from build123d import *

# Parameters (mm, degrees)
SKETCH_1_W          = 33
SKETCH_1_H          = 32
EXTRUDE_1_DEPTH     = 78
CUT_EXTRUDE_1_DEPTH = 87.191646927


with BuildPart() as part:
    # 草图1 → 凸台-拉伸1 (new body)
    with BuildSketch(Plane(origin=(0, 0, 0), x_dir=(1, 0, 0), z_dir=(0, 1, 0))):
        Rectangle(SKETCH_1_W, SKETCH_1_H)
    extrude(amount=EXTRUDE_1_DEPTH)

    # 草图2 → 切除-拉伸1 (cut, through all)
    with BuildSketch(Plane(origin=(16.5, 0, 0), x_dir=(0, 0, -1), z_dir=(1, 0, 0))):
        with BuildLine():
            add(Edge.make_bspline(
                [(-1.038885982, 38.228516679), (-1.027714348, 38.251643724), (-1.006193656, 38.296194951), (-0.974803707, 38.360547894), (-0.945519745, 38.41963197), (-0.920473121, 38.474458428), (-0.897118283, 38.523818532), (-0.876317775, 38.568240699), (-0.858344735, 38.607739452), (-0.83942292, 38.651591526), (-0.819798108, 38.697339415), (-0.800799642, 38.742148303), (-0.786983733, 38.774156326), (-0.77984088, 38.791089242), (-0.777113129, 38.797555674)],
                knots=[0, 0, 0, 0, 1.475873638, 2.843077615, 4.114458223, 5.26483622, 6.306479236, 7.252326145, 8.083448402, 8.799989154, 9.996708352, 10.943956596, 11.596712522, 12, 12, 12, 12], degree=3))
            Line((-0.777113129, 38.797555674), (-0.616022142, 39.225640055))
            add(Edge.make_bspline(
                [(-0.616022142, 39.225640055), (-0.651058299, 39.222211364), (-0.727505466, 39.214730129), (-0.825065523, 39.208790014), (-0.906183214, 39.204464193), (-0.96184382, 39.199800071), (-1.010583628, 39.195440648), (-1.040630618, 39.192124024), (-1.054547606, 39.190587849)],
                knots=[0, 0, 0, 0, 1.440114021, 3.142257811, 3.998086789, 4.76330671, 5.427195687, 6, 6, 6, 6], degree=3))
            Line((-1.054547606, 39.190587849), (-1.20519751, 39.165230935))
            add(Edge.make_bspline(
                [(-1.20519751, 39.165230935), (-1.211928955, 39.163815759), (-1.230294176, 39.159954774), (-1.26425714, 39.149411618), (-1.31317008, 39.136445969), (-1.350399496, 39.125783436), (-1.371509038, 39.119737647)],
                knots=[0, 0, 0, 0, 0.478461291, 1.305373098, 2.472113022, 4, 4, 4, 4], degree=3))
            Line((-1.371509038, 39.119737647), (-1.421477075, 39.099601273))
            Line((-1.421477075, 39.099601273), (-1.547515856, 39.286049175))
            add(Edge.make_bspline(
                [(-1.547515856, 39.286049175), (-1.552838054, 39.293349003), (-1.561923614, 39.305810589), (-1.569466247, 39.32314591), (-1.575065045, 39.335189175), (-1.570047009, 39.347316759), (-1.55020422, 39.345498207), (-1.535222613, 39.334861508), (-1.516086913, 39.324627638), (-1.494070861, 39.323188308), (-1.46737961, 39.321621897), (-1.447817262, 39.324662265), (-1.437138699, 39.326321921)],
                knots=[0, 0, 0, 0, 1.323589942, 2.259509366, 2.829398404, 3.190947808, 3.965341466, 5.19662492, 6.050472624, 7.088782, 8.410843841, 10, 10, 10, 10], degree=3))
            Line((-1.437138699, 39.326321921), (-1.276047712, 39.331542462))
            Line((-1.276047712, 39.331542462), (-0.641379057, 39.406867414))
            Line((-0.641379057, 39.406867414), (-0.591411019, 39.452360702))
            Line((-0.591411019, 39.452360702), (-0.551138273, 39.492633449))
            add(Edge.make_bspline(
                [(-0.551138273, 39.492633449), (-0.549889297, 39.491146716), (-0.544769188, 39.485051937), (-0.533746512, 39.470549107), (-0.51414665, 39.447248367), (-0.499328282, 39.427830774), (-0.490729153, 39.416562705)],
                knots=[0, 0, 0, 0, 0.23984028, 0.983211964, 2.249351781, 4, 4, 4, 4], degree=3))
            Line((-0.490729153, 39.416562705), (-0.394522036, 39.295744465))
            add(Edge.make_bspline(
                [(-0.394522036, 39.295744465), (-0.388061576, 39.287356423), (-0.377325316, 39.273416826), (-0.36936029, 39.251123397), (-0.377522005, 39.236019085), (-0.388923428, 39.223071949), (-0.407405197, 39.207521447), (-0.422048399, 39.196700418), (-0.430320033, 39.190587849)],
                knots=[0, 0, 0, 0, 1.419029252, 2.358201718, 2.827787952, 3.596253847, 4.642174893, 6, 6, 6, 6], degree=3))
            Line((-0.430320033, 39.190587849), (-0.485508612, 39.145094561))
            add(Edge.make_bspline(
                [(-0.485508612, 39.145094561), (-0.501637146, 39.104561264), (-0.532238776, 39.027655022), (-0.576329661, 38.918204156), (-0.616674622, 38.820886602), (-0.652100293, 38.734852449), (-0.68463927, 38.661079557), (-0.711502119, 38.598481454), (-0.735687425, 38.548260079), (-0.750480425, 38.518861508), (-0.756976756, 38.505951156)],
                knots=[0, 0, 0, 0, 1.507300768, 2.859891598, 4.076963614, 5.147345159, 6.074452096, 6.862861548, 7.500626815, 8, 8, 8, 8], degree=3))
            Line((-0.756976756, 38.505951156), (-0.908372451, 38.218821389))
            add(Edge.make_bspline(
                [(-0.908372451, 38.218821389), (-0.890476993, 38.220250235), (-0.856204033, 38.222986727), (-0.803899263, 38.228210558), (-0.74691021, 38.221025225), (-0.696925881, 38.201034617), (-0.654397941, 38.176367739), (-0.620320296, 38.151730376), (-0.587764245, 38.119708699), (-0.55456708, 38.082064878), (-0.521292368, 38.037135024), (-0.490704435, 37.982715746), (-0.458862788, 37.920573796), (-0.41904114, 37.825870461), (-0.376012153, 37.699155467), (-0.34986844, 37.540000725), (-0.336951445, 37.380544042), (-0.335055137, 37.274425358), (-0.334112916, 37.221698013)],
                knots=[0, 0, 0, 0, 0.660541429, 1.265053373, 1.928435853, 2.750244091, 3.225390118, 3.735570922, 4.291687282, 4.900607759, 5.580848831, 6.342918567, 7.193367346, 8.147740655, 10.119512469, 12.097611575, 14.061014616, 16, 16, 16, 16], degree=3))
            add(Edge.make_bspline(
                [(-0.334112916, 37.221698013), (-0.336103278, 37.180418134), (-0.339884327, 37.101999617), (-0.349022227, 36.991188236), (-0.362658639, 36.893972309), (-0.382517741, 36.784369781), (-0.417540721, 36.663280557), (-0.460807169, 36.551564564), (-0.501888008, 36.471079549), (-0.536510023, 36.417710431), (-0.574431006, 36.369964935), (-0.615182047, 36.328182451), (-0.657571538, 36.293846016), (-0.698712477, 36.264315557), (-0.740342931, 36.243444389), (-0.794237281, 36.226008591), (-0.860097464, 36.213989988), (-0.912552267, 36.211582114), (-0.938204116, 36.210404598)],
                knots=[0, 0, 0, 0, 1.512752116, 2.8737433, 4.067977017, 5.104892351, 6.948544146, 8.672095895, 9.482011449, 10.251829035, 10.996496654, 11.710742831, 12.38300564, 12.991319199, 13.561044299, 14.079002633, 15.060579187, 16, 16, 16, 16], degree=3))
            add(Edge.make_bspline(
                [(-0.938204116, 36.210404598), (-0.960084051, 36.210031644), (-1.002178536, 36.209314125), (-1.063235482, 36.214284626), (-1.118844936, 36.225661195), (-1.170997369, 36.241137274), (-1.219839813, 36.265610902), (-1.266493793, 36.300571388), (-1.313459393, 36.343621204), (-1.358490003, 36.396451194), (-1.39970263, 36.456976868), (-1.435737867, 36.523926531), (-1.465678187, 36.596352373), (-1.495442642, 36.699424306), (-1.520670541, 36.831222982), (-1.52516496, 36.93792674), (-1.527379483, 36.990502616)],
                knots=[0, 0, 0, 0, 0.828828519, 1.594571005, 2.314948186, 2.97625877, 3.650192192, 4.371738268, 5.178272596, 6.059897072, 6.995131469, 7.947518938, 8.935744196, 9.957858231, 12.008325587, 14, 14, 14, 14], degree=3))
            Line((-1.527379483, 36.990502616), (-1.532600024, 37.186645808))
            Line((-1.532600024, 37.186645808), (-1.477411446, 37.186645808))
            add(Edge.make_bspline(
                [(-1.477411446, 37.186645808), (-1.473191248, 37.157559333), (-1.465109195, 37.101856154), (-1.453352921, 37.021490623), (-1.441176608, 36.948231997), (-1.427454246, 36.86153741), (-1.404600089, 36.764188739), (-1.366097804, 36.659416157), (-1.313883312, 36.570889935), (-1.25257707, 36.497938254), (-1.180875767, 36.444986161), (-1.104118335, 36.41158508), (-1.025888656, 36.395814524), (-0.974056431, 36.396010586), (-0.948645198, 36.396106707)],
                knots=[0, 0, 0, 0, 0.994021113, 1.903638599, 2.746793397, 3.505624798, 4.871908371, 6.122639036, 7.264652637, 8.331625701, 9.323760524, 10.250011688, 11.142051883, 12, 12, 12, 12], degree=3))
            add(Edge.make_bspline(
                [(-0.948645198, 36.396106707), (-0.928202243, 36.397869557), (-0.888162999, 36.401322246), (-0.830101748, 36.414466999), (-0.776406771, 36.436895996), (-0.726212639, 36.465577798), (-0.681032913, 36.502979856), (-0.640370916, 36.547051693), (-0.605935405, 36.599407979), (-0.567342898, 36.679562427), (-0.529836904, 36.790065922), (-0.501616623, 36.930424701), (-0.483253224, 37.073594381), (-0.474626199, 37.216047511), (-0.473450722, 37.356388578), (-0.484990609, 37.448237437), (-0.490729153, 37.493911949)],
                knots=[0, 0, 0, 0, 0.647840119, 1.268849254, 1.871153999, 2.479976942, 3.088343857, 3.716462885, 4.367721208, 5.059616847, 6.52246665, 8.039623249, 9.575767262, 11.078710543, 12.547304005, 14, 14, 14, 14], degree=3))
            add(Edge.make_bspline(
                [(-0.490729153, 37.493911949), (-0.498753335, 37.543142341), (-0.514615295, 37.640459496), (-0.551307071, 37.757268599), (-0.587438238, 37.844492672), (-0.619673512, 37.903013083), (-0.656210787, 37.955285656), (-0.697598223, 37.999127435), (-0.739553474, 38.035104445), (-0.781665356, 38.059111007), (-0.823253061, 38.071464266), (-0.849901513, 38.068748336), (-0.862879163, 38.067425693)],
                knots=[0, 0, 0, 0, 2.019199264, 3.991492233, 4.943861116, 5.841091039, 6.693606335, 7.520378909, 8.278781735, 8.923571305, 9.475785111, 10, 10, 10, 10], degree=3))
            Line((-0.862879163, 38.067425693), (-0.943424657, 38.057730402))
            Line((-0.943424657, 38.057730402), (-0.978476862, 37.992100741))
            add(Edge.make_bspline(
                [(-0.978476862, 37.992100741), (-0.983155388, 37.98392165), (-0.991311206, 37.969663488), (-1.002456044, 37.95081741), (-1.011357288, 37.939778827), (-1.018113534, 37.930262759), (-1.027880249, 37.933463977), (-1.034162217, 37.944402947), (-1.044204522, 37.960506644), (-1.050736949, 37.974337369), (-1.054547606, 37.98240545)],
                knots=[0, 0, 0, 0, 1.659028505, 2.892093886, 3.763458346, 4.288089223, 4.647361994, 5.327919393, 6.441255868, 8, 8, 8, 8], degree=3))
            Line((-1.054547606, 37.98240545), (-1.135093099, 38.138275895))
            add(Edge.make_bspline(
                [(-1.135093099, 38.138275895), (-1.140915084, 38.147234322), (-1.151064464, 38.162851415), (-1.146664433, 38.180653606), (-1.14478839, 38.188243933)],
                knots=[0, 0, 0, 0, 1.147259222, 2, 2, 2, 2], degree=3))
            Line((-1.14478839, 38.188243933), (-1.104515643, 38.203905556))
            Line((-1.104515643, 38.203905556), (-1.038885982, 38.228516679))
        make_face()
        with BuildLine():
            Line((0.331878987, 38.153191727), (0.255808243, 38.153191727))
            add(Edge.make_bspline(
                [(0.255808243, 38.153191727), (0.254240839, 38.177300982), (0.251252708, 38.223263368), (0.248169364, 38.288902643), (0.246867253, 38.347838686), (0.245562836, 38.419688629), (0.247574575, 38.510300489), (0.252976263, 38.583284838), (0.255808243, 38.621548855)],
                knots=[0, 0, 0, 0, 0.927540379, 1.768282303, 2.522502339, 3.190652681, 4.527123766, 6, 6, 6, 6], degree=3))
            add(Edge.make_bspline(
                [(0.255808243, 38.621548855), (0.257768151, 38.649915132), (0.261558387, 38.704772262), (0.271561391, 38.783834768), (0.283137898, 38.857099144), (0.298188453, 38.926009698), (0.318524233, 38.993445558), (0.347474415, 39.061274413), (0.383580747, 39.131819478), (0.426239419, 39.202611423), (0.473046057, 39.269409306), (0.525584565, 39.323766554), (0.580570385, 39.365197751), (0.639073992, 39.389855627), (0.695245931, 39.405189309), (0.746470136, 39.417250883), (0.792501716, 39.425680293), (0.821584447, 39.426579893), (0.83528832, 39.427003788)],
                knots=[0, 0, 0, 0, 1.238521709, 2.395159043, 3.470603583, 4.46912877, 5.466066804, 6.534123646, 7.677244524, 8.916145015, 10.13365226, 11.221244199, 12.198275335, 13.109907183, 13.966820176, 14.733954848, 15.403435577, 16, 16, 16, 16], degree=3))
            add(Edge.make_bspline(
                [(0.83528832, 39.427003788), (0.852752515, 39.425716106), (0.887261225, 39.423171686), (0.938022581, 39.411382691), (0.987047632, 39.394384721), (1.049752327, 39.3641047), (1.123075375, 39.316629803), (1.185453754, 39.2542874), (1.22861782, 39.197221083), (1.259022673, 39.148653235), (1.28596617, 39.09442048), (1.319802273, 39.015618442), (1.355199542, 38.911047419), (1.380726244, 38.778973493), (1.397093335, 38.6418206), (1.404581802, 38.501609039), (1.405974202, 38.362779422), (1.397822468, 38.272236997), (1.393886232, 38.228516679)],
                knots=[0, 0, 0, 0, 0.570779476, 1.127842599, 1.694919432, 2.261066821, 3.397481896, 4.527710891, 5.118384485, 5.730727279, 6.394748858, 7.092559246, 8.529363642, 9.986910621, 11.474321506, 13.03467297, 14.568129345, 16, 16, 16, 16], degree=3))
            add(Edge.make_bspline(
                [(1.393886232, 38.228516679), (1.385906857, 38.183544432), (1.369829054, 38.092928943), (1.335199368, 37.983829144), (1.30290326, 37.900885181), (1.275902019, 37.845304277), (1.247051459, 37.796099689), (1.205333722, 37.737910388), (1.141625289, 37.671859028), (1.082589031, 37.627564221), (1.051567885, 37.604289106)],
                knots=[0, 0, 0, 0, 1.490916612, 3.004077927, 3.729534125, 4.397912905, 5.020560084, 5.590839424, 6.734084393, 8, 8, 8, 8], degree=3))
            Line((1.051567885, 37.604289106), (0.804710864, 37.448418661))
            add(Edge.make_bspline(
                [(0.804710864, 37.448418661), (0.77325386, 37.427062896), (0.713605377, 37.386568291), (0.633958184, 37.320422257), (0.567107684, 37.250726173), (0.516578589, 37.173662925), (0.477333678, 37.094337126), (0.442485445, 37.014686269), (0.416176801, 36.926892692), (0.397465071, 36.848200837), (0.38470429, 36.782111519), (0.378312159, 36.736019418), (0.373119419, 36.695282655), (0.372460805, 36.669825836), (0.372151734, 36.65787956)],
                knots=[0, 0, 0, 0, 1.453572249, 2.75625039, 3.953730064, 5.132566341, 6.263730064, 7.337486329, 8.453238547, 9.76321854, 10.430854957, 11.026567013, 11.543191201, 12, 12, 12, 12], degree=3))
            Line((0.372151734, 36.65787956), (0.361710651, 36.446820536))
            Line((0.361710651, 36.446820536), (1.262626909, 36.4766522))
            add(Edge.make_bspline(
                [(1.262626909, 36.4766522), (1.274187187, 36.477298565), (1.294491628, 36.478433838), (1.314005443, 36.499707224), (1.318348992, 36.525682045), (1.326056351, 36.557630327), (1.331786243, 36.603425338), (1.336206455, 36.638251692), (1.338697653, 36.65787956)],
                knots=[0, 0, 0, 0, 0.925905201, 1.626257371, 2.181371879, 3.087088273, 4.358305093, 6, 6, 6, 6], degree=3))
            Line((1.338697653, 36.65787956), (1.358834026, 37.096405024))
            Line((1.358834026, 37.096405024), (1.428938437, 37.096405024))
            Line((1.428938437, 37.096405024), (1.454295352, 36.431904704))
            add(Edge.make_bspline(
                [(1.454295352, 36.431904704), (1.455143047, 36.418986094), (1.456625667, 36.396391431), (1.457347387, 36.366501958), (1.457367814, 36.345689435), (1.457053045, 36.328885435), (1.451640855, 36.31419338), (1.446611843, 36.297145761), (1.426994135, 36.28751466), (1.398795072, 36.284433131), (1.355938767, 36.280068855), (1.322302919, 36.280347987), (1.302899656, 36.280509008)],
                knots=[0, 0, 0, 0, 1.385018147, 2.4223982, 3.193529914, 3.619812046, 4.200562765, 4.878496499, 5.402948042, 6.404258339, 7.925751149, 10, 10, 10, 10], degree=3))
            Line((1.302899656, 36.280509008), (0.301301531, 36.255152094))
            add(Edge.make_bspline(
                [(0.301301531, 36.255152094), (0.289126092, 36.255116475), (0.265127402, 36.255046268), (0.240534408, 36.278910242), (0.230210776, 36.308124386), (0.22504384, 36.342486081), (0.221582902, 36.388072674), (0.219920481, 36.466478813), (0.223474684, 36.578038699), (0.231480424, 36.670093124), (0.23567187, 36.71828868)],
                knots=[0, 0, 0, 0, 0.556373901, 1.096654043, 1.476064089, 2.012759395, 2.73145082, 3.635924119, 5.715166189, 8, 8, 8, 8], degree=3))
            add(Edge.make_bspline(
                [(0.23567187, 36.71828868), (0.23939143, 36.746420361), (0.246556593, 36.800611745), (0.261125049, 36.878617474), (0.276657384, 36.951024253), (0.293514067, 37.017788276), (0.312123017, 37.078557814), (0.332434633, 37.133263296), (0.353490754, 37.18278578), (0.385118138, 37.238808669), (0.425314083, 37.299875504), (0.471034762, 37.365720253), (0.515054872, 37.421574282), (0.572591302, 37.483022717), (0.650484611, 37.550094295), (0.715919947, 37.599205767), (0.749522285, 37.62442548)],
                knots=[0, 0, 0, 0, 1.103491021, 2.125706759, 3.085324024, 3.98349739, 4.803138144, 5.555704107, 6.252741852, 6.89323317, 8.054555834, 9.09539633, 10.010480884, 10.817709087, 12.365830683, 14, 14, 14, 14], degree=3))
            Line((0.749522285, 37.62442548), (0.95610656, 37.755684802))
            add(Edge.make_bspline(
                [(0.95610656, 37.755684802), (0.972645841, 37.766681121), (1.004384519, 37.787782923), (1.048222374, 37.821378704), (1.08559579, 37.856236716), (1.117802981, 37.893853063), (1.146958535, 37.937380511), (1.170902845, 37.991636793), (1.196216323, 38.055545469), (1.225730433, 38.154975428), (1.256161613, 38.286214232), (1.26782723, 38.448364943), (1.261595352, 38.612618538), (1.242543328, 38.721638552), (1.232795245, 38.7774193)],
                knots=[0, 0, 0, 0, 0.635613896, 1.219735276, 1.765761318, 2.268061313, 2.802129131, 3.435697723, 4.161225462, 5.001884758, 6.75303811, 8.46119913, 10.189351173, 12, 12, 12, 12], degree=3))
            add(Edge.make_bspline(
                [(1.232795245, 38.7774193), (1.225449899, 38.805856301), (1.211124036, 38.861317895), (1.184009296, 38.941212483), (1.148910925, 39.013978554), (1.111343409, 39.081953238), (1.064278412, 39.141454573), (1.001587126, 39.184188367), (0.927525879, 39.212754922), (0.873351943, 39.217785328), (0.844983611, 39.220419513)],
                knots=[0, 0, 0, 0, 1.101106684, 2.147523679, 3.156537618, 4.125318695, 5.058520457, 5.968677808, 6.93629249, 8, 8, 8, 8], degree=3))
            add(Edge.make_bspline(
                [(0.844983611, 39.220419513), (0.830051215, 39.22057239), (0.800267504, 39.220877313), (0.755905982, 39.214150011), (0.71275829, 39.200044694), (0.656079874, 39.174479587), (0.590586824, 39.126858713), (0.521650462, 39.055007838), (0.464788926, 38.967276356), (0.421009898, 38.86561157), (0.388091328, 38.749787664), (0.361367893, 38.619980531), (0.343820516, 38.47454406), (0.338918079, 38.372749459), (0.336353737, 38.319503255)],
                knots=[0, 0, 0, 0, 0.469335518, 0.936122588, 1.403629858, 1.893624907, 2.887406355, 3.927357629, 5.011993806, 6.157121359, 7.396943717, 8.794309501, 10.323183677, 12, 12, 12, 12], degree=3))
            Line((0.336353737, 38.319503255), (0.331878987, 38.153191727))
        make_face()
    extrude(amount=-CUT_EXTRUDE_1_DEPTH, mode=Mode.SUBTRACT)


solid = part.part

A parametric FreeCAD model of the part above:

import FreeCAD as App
import Part
import Sketcher
Q = App.Units.Quantity

doc = App.newDocument("Part")
body = doc.addObject("PartDesign::Body", "Body")

# Sketch on XZ plane
sketch1 = body.newObject("Sketcher::SketchObject", "Sketch")
sketch1.AttachmentSupport = (doc.getObject("XZ_Plane"), [""])
sketch1.MapMode = "FlatFace"
sketch1.addGeometry(Part.LineSegment(App.Vector(-16, -16, 0), App.Vector(-16, 16, 0)), False)
sketch1.addGeometry(Part.LineSegment(App.Vector(-16, 16, 0), App.Vector(16, 16, 0)), False)
sketch1.addGeometry(Part.LineSegment(App.Vector(16, 16, 0), App.Vector(16, -16, 0)), False)
sketch1.addGeometry(Part.LineSegment(App.Vector(16, -16, 0), App.Vector(-16, -16, 0)), False)
sketch1.addConstraint(Sketcher.Constraint("Coincident", 0, 2, 1, 1))
sketch1.addConstraint(Sketcher.Constraint("Coincident", 1, 2, 2, 1))
sketch1.addConstraint(Sketcher.Constraint("Coincident", 2, 2, 3, 1))
sketch1.addConstraint(Sketcher.Constraint("Coincident", 3, 2, 0, 1))
sketch1.addConstraint(Sketcher.Constraint("Vertical", 0))
sketch1.addConstraint(Sketcher.Constraint("Horizontal", 1))
sketch1.addConstraint(Sketcher.Constraint("Vertical", 2))
sketch1.addConstraint(Sketcher.Constraint("Horizontal", 3))
sketch1.addConstraint(Sketcher.Constraint("Symmetric", 0, 2, 2, 2, -1, 1))
sketch1.addConstraint(Sketcher.Constraint("DistanceX", 1, 1, 1, 2, Q("33 mm")))
sketch1.addConstraint(Sketcher.Constraint("DistanceY", 0, 1, 0, 2, Q("32 mm")))
pad1 = body.newObject("PartDesign::Pad", "Pad")
pad1.Profile = sketch1
pad1.Length = 78
pad1.Reversed = True

# Sketch on YZ plane
sketch2 = body.newObject("Sketcher::SketchObject", "Sketch001")
sketch2.AttachmentSupport = (doc.getObject("YZ_Plane"), [""])
sketch2.MapMode = "FlatFace"
sketch2.AttachmentOffset = App.Placement(App.Vector(0, 0, 16.5), App.Rotation())
sketch2.addGeometry(Part.BSplineCurve([App.Vector(38.228517, 1.038886, 0), App.Vector(38.251644, 1.027714, 0), App.Vector(38.296195, 1.006194, 0), App.Vector(38.360548, 0.974804, 0), App.Vector(38.419632, 0.94552, 0), App.Vector(38.474458, 0.920473, 0), App.Vector(38.523819, 0.897118, 0), App.Vector(38.568241, 0.876318, 0), App.Vector(38.607739, 0.858345, 0), App.Vector(38.651592, 0.839423, 0), App.Vector(38.697339, 0.819798, 0), App.Vector(38.742148, 0.8008, 0), App.Vector(38.774156, 0.786984, 0), App.Vector(38.791089, 0.779841, 0), App.Vector(38.797556, 0.777113, 0)], [4, 1, 1, 1, 1, 1, 1, 1, 1, 1, 1, 1, 4], [0, 1.475873638, 2.843077615, 4.114458223, 5.26483622, 6.306479236, 7.252326145, 8.083448402, 8.799989154, 9.996708352, 10.943956596, 11.596712522, 12], False, 3, [1, 1, 1, 1, 1, 1, 1, 1, 1, 1, 1, 1, 1, 1, 1], False), False)
sketch2.addGeometry(Part.LineSegment(App.Vector(38.228517, 1.038886, 0), App.Vector(38.203906, 1.104516, 0)), False)
sketch2.addGeometry(Part.LineSegment(App.Vector(38.203906, 1.104516, 0), App.Vector(38.188244, 1.144788, 0)), False)
sketch2.addGeometry(Part.BSplineCurve([App.Vector(38.138276, 1.135093, 0), App.Vector(38.147234, 1.140915, 0), App.Vector(38.162851, 1.151064, 0), App.Vector(38.180654, 1.146664, 0), App.Vector(38.188244, 1.144788, 0)], [4, 1, 4], [0, 1.147259222, 2], False, 3, [1, 1, 1, 1, 1], False), False)
sketch2.addGeometry(Part.LineSegment(App.Vector(38.138276, 1.135093, 0), App.Vector(37.982405, 1.054548, 0)), False)
sketch2.addGeometry(Part.BSplineCurve([App.Vector(37.992101, 0.978477, 0), App.Vector(37.983922, 0.983155, 0), App.Vector(37.969663, 0.991311, 0), App.Vector(37.950817, 1.002456, 0), App.Vector(37.939779, 1.011357, 0), App.Vector(37.930263, 1.018114, 0), App.Vector(37.933464, 1.02788, 0), App.Vector(37.944403, 1.034162, 0), App.Vector(37.960507, 1.044205, 0), App.Vector(37.974337, 1.050737, 0), App.Vector(37.982405, 1.054548, 0)], [4, 1, 1, 1, 1, 1, 1, 1, 4], [0, 1.659028505, 2.892093886, 3.763458346, 4.288089223, 4.647361994, 5.327919393, 6.441255868, 8], False, 3, [1, 1, 1, 1, 1, 1, 1, 1, 1, 1, 1], False), False)
sketch2.addGeometry(Part.LineSegment(App.Vector(37.992101, 0.978477, 0), App.Vector(38.05773, 0.943425, 0)), False)
sketch2.addGeometry(Part.LineSegment(App.Vector(38.05773, 0.943425, 0), App.Vector(38.067426, 0.862879, 0)), False)
sketch2.addGeometry(Part.BSplineCurve([App.Vector(37.493912, 0.490729, 0), App.Vector(37.543142, 0.498753, 0), App.Vector(37.640459, 0.514615, 0), App.Vector(37.757269, 0.551307, 0), App.Vector(37.844493, 0.587438, 0), App.Vector(37.903013, 0.619674, 0), App.Vector(37.955286, 0.656211, 0), App.Vector(37.999127, 0.697598, 0), App.Vector(38.035104, 0.739553, 0), App.Vector(38.059111, 0.781665, 0), App.Vector(38.071464, 0.823253, 0), App.Vector(38.068748, 0.849902, 0), App.Vector(38.067426, 0.862879, 0)], [4, 1, 1, 1, 1, 1, 1, 1, 1, 1, 4], [0, 2.019199264, 3.991492233, 4.943861116, 5.841091039, 6.693606335, 7.520378909, 8.278781735, 8.923571305, 9.475785111, 10], False, 3, [1, 1, 1, 1, 1, 1, 1, 1, 1, 1, 1, 1, 1], False), False)
sketch2.addGeometry(Part.BSplineCurve([App.Vector(36.396107, 0.948645, 0), App.Vector(36.39787, 0.928202, 0), App.Vector(36.401322, 0.888163, 0), App.Vector(36.414467, 0.830102, 0), App.Vector(36.436896, 0.776407, 0), App.Vector(36.465578, 0.726213, 0), App.Vector(36.50298, 0.681033, 0), App.Vector(36.547052, 0.640371, 0), App.Vector(36.599408, 0.605935, 0), App.Vector(36.679562, 0.567343, 0), App.Vector(36.790066, 0.529837, 0), App.Vector(36.930425, 0.501617, 0), App.Vector(37.073594, 0.483253, 0), App.Vector(37.216048, 0.474626, 0), App.Vector(37.356389, 0.473451, 0), App.Vector(37.448237, 0.484991, 0), App.Vector(37.493912, 0.490729, 0)], [4, 1, 1, 1, 1, 1, 1, 1, 1, 1, 1, 1, 1, 1, 4], [0, 0.647840119, 1.268849254, 1.871153999, 2.479976942, 3.088343857, 3.716462885, 4.367721208, 5.059616847, 6.52246665, 8.039623249, 9.575767262, 11.078710543, 12.547304005, 14], False, 3, [1, 1, 1, 1, 1, 1, 1, 1, 1, 1, 1, 1, 1, 1, 1, 1, 1], False), False)
sketch2.addGeometry(Part.BSplineCurve([App.Vector(37.186646, 1.477411, 0), App.Vector(37.157559, 1.473191, 0), App.Vector(37.101856, 1.465109, 0), App.Vector(37.021491, 1.453353, 0), App.Vector(36.948232, 1.441177, 0), App.Vector(36.861537, 1.427454, 0), App.Vector(36.764189, 1.4046, 0), App.Vector(36.659416, 1.366098, 0), App.Vector(36.57089, 1.313883, 0), App.Vector(36.497938, 1.252577, 0), App.Vector(36.444986, 1.180876, 0), App.Vector(36.411585, 1.104118, 0), App.Vector(36.395815, 1.025889, 0), App.Vector(36.396011, 0.974056, 0), App.Vector(36.396107, 0.948645, 0)], [4, 1, 1, 1, 1, 1, 1, 1, 1, 1, 1, 1, 4], [0, 0.994021113, 1.903638599, 2.746793397, 3.505624798, 4.871908371, 6.122639036, 7.264652637, 8.331625701, 9.323760524, 10.250011688, 11.142051883, 12], False, 3, [1, 1, 1, 1, 1, 1, 1, 1, 1, 1, 1, 1, 1, 1, 1], False), False)
sketch2.addGeometry(Part.LineSegment(App.Vector(37.186646, 1.477411, 0), App.Vector(37.186646, 1.5326, 0)), False)
sketch2.addGeometry(Part.LineSegment(App.Vector(37.186646, 1.5326, 0), App.Vector(36.990503, 1.527379, 0)), False)
sketch2.addGeometry(Part.BSplineCurve([App.Vector(36.210405, 0.938204, 0), App.Vector(36.210032, 0.960084, 0), App.Vector(36.209314, 1.002179, 0), App.Vector(36.214285, 1.063235, 0), App.Vector(36.225661, 1.118845, 0), App.Vector(36.241137, 1.170997, 0), App.Vector(36.265611, 1.21984, 0), App.Vector(36.300571, 1.266494, 0), App.Vector(36.343621, 1.313459, 0), App.Vector(36.396451, 1.35849, 0), App.Vector(36.456977, 1.399703, 0), App.Vector(36.523927, 1.435738, 0), App.Vector(36.596352, 1.465678, 0), App.Vector(36.699424, 1.495443, 0), App.Vector(36.831223, 1.520671, 0), App.Vector(36.937927, 1.525165, 0), App.Vector(36.990503, 1.527379, 0)], [4, 1, 1, 1, 1, 1, 1, 1, 1, 1, 1, 1, 1, 1, 4], [0, 0.828828519, 1.594571005, 2.314948186, 2.97625877, 3.650192192, 4.371738268, 5.178272596, 6.059897072, 6.995131469, 7.947518938, 8.935744196, 9.957858231, 12.008325587, 14], False, 3, [1, 1, 1, 1, 1, 1, 1, 1, 1, 1, 1, 1, 1, 1, 1, 1, 1], False), False)
sketch2.addGeometry(Part.BSplineCurve([App.Vector(37.221698, 0.334113, 0), App.Vector(37.180418, 0.336103, 0), App.Vector(37.102, 0.339884, 0), App.Vector(36.991188, 0.349022, 0), App.Vector(36.893972, 0.362659, 0), App.Vector(36.78437, 0.382518, 0), App.Vector(36.663281, 0.417541, 0), App.Vector(36.551565, 0.460807, 0), App.Vector(36.47108, 0.501888, 0), App.Vector(36.41771, 0.53651, 0), App.Vector(36.369965, 0.574431, 0), App.Vector(36.328182, 0.615182, 0), App.Vector(36.293846, 0.657572, 0), App.Vector(36.264316, 0.698712, 0), App.Vector(36.243444, 0.740343, 0), App.Vector(36.226009, 0.794237, 0), App.Vector(36.21399, 0.860097, 0), App.Vector(36.211582, 0.912552, 0), App.Vector(36.210405, 0.938204, 0)], [4, 1, 1, 1, 1, 1, 1, 1, 1, 1, 1, 1, 1, 1, 1, 1, 4], [0, 1.512752116, 2.8737433, 4.067977017, 5.104892351, 6.948544146, 8.672095895, 9.482011449, 10.251829035, 10.996496654, 11.710742831, 12.38300564, 12.991319199, 13.561044299, 14.079002633, 15.060579187, 16], False, 3, [1, 1, 1, 1, 1, 1, 1, 1, 1, 1, 1, 1, 1, 1, 1, 1, 1, 1, 1], False), False)
sketch2.addGeometry(Part.BSplineCurve([App.Vector(38.218821, 0.908372, 0), App.Vector(38.22025, 0.890477, 0), App.Vector(38.222987, 0.856204, 0), App.Vector(38.228211, 0.803899, 0), App.Vector(38.221025, 0.74691, 0), App.Vector(38.201035, 0.696926, 0), App.Vector(38.176368, 0.654398, 0), App.Vector(38.15173, 0.62032, 0), App.Vector(38.119709, 0.587764, 0), App.Vector(38.082065, 0.554567, 0), App.Vector(38.037135, 0.521292, 0), App.Vector(37.982716, 0.490704, 0), App.Vector(37.920574, 0.458863, 0), App.Vector(37.82587, 0.419041, 0), App.Vector(37.699155, 0.376012, 0), App.Vector(37.540001, 0.349868, 0), App.Vector(37.380544, 0.336951, 0), App.Vector(37.274425, 0.335055, 0), App.Vector(37.221698, 0.334113, 0)], [4, 1, 1, 1, 1, 1, 1, 1, 1, 1, 1, 1, 1, 1, 1, 1, 4], [0, 0.660541429, 1.265053373, 1.928435853, 2.750244091, 3.225390118, 3.735570922, 4.291687282, 4.900607759, 5.580848831, 6.342918567, 7.193367346, 8.147740655, 10.119512469, 12.097611575, 14.061014616, 16], False, 3, [1, 1, 1, 1, 1, 1, 1, 1, 1, 1, 1, 1, 1, 1, 1, 1, 1, 1, 1], False), False)
sketch2.addGeometry(Part.LineSegment(App.Vector(38.218821, 0.908372, 0), App.Vector(38.505951, 0.756977, 0)), False)
sketch2.addGeometry(Part.BSplineCurve([App.Vector(39.145095, 0.485509, 0), App.Vector(39.104561, 0.501637, 0), App.Vector(39.027655, 0.532239, 0), App.Vector(38.918204, 0.57633, 0), App.Vector(38.820887, 0.616675, 0), App.Vector(38.734852, 0.6521, 0), App.Vector(38.66108, 0.684639, 0), App.Vector(38.598481, 0.711502, 0), App.Vector(38.54826, 0.735687, 0), App.Vector(38.518862, 0.75048, 0), App.Vector(38.505951, 0.756977, 0)], [4, 1, 1, 1, 1, 1, 1, 1, 4], [0, 1.507300768, 2.859891598, 4.076963614, 5.147345159, 6.074452096, 6.862861548, 7.500626815, 8], False, 3, [1, 1, 1, 1, 1, 1, 1, 1, 1, 1, 1], False), False)
sketch2.addGeometry(Part.LineSegment(App.Vector(39.145095, 0.485509, 0), App.Vector(39.190588, 0.43032, 0)), False)
sketch2.addGeometry(Part.BSplineCurve([App.Vector(39.295744, 0.394522, 0), App.Vector(39.287356, 0.388062, 0), App.Vector(39.273417, 0.377325, 0), App.Vector(39.251123, 0.36936, 0), App.Vector(39.236019, 0.377522, 0), App.Vector(39.223072, 0.388923, 0), App.Vector(39.207521, 0.407405, 0), App.Vector(39.1967, 0.422048, 0), App.Vector(39.190588, 0.43032, 0)], [4, 1, 1, 1, 1, 1, 4], [0, 1.419029252, 2.358201718, 2.827787952, 3.596253847, 4.642174893, 6], False, 3, [1, 1, 1, 1, 1, 1, 1, 1, 1], False), False)
sketch2.addGeometry(Part.LineSegment(App.Vector(39.295744, 0.394522, 0), App.Vector(39.416563, 0.490729, 0)), False)
sketch2.addGeometry(Part.BSplineCurve([App.Vector(39.492633, 0.551138, 0), App.Vector(39.491147, 0.549889, 0), App.Vector(39.485052, 0.544769, 0), App.Vector(39.470549, 0.533747, 0), App.Vector(39.447248, 0.514147, 0), App.Vector(39.427831, 0.499328, 0), App.Vector(39.416563, 0.490729, 0)], [4, 1, 1, 1, 4], [0, 0.23984028, 0.983211964, 2.249351781, 4], False, 3, [1, 1, 1, 1, 1, 1, 1], False), False)
sketch2.addGeometry(Part.LineSegment(App.Vector(39.492633, 0.551138, 0), App.Vector(39.452361, 0.591411, 0)), False)
sketch2.addGeometry(Part.LineSegment(App.Vector(39.452361, 0.591411, 0), App.Vector(39.406867, 0.641379, 0)), False)
sketch2.addGeometry(Part.LineSegment(App.Vector(39.406867, 0.641379, 0), App.Vector(39.331542, 1.276048, 0)), False)
sketch2.addGeometry(Part.LineSegment(App.Vector(39.331542, 1.276048, 0), App.Vector(39.326322, 1.437139, 0)), False)
sketch2.addGeometry(Part.BSplineCurve([App.Vector(39.286049, 1.547516, 0), App.Vector(39.293349, 1.552838, 0), App.Vector(39.305811, 1.561924, 0), App.Vector(39.323146, 1.569466, 0), App.Vector(39.335189, 1.575065, 0), App.Vector(39.347317, 1.570047, 0), App.Vector(39.345498, 1.550204, 0), App.Vector(39.334862, 1.535223, 0), App.Vector(39.324628, 1.516087, 0), App.Vector(39.323188, 1.494071, 0), App.Vector(39.321622, 1.46738, 0), App.Vector(39.324662, 1.447817, 0), App.Vector(39.326322, 1.437139, 0)], [4, 1, 1, 1, 1, 1, 1, 1, 1, 1, 4], [0, 1.323589942, 2.259509366, 2.829398404, 3.190947808, 3.965341466, 5.19662492, 6.050472624, 7.088782, 8.410843841, 10], False, 3, [1, 1, 1, 1, 1, 1, 1, 1, 1, 1, 1, 1, 1], False), False)
sketch2.addGeometry(Part.LineSegment(App.Vector(39.286049, 1.547516, 0), App.Vector(39.099601, 1.421477, 0)), False)
sketch2.addGeometry(Part.LineSegment(App.Vector(39.099601, 1.421477, 0), App.Vector(39.119738, 1.371509, 0)), False)
sketch2.addGeometry(Part.BSplineCurve([App.Vector(39.165231, 1.205198, 0), App.Vector(39.163816, 1.211929, 0), App.Vector(39.159955, 1.230294, 0), App.Vector(39.149412, 1.264257, 0), App.Vector(39.136446, 1.31317, 0), App.Vector(39.125783, 1.350399, 0), App.Vector(39.119738, 1.371509, 0)], [4, 1, 1, 1, 4], [0, 0.478461291, 1.305373098, 2.472113022, 4], False, 3, [1, 1, 1, 1, 1, 1, 1], False), False)
sketch2.addGeometry(Part.LineSegment(App.Vector(39.165231, 1.205198, 0), App.Vector(39.190588, 1.054548, 0)), False)
sketch2.addGeometry(Part.BSplineCurve([App.Vector(39.22564, 0.616022, 0), App.Vector(39.222211, 0.651058, 0), App.Vector(39.21473, 0.727505, 0), App.Vector(39.20879, 0.825066, 0), App.Vector(39.204464, 0.906183, 0), App.Vector(39.1998, 0.961844, 0), App.Vector(39.195441, 1.010584, 0), App.Vector(39.192124, 1.040631, 0), App.Vector(39.190588, 1.054548, 0)], [4, 1, 1, 1, 1, 1, 4], [0, 1.440114021, 3.142257811, 3.998086789, 4.76330671, 5.427195687, 6], False, 3, [1, 1, 1, 1, 1, 1, 1, 1, 1], False), False)
sketch2.addGeometry(Part.LineSegment(App.Vector(39.22564, 0.616022, 0), App.Vector(38.797556, 0.777113, 0)), False)
sketch2.addGeometry(Part.LineSegment(App.Vector(38.153192, -0.255808, 0), App.Vector(38.153192, -0.331879, 0)), False)
sketch2.addGeometry(Part.LineSegment(App.Vector(38.153192, -0.331879, 0), App.Vector(38.319503, -0.336354, 0)), False)
sketch2.addGeometry(Part.BSplineCurve([App.Vector(39.22042, -0.844984, 0), App.Vector(39.220572, -0.830051, 0), App.Vector(39.220877, -0.800268, 0), App.Vector(39.21415, -0.755906, 0), App.Vector(39.200045, -0.712758, 0), App.Vector(39.17448, -0.65608, 0), App.Vector(39.126859, -0.590587, 0), App.Vector(39.055008, -0.52165, 0), App.Vector(38.967276, -0.464789, 0), App.Vector(38.865612, -0.42101, 0), App.Vector(38.749788, -0.388091, 0), App.Vector(38.619981, -0.361368, 0), App.Vector(38.474544, -0.343821, 0), App.Vector(38.372749, -0.338918, 0), App.Vector(38.319503, -0.336354, 0)], [4, 1, 1, 1, 1, 1, 1, 1, 1, 1, 1, 1, 4], [0, 0.469335518, 0.936122588, 1.403629858, 1.893624907, 2.887406355, 3.927357629, 5.011993806, 6.157121359, 7.396943717, 8.794309501, 10.323183677, 12], False, 3, [1, 1, 1, 1, 1, 1, 1, 1, 1, 1, 1, 1, 1, 1, 1], False), False)
sketch2.addGeometry(Part.BSplineCurve([App.Vector(38.777419, -1.232795, 0), App.Vector(38.805856, -1.22545, 0), App.Vector(38.861318, -1.211124, 0), App.Vector(38.941212, -1.184009, 0), App.Vector(39.013979, -1.148911, 0), App.Vector(39.081953, -1.111343, 0), App.Vector(39.141455, -1.064278, 0), App.Vector(39.184188, -1.001587, 0), App.Vector(39.212755, -0.927526, 0), App.Vector(39.217785, -0.873352, 0), App.Vector(39.22042, -0.844984, 0)], [4, 1, 1, 1, 1, 1, 1, 1, 4], [0, 1.101106684, 2.147523679, 3.156537618, 4.125318695, 5.058520457, 5.968677808, 6.93629249, 8], False, 3, [1, 1, 1, 1, 1, 1, 1, 1, 1, 1, 1], False), False)
sketch2.addGeometry(Part.BSplineCurve([App.Vector(37.755685, -0.956107, 0), App.Vector(37.766681, -0.972646, 0), App.Vector(37.787783, -1.004385, 0), App.Vector(37.821379, -1.048222, 0), App.Vector(37.856237, -1.085596, 0), App.Vector(37.893853, -1.117803, 0), App.Vector(37.937381, -1.146959, 0), App.Vector(37.991637, -1.170903, 0), App.Vector(38.055545, -1.196216, 0), App.Vector(38.154975, -1.22573, 0), App.Vector(38.286214, -1.256162, 0), App.Vector(38.448365, -1.267827, 0), App.Vector(38.612619, -1.261595, 0), App.Vector(38.721639, -1.242543, 0), App.Vector(38.777419, -1.232795, 0)], [4, 1, 1, 1, 1, 1, 1, 1, 1, 1, 1, 1, 4], [0, 0.635613896, 1.219735276, 1.765761318, 2.268061313, 2.802129131, 3.435697723, 4.161225462, 5.001884758, 6.75303811, 8.46119913, 10.189351173, 12], False, 3, [1, 1, 1, 1, 1, 1, 1, 1, 1, 1, 1, 1, 1, 1, 1], False), False)
sketch2.addGeometry(Part.LineSegment(App.Vector(37.755685, -0.956107, 0), App.Vector(37.624425, -0.749522, 0)), False)
sketch2.addGeometry(Part.BSplineCurve([App.Vector(36.718289, -0.235672, 0), App.Vector(36.74642, -0.239391, 0), App.Vector(36.800612, -0.246557, 0), App.Vector(36.878617, -0.261125, 0), App.Vector(36.951024, -0.276657, 0), App.Vector(37.017788, -0.293514, 0), App.Vector(37.078558, -0.312123, 0), App.Vector(37.133263, -0.332435, 0), App.Vector(37.182786, -0.353491, 0), App.Vector(37.238809, -0.385118, 0), App.Vector(37.299876, -0.425314, 0), App.Vector(37.36572, -0.471035, 0), App.Vector(37.421574, -0.515055, 0), App.Vector(37.483023, -0.572591, 0), App.Vector(37.550094, -0.650485, 0), App.Vector(37.599206, -0.71592, 0), App.Vector(37.624425, -0.749522, 0)], [4, 1, 1, 1, 1, 1, 1, 1, 1, 1, 1, 1, 1, 1, 4], [0, 1.103491021, 2.125706759, 3.085324024, 3.98349739, 4.803138144, 5.555704107, 6.252741852, 6.89323317, 8.054555834, 9.09539633, 10.010480884, 10.817709087, 12.365830683, 14], False, 3, [1, 1, 1, 1, 1, 1, 1, 1, 1, 1, 1, 1, 1, 1, 1, 1, 1], False), False)
sketch2.addGeometry(Part.BSplineCurve([App.Vector(36.255152, -0.301302, 0), App.Vector(36.255116, -0.289126, 0), App.Vector(36.255046, -0.265127, 0), App.Vector(36.27891, -0.240534, 0), App.Vector(36.308124, -0.230211, 0), App.Vector(36.342486, -0.225044, 0), App.Vector(36.388073, -0.221583, 0), App.Vector(36.466479, -0.21992, 0), App.Vector(36.578039, -0.223475, 0), App.Vector(36.670093, -0.23148, 0), App.Vector(36.718289, -0.235672, 0)], [4, 1, 1, 1, 1, 1, 1, 1, 4], [0, 0.556373901, 1.096654043, 1.476064089, 2.012759395, 2.73145082, 3.635924119, 5.715166189, 8], False, 3, [1, 1, 1, 1, 1, 1, 1, 1, 1, 1, 1], False), False)
sketch2.addGeometry(Part.LineSegment(App.Vector(36.255152, -0.301302, 0), App.Vector(36.280509, -1.3029, 0)), False)
sketch2.addGeometry(Part.BSplineCurve([App.Vector(36.431905, -1.454295, 0), App.Vector(36.418986, -1.455143, 0), App.Vector(36.396391, -1.456626, 0), App.Vector(36.366502, -1.457347, 0), App.Vector(36.345689, -1.457368, 0), App.Vector(36.328885, -1.457053, 0), App.Vector(36.314193, -1.451641, 0), App.Vector(36.297146, -1.446612, 0), App.Vector(36.287515, -1.426994, 0), App.Vector(36.284433, -1.398795, 0), App.Vector(36.280069, -1.355939, 0), App.Vector(36.280348, -1.322303, 0), App.Vector(36.280509, -1.3029, 0)], [4, 1, 1, 1, 1, 1, 1, 1, 1, 1, 4], [0, 1.385018147, 2.4223982, 3.193529914, 3.619812046, 4.200562765, 4.878496499, 5.402948042, 6.404258339, 7.925751149, 10], False, 3, [1, 1, 1, 1, 1, 1, 1, 1, 1, 1, 1, 1, 1], False), False)
sketch2.addGeometry(Part.LineSegment(App.Vector(36.431905, -1.454295, 0), App.Vector(37.096405, -1.428938, 0)), False)
sketch2.addGeometry(Part.LineSegment(App.Vector(37.096405, -1.428938, 0), App.Vector(37.096405, -1.358834, 0)), False)
sketch2.addGeometry(Part.LineSegment(App.Vector(37.096405, -1.358834, 0), App.Vector(36.65788, -1.338698, 0)), False)
sketch2.addGeometry(Part.BSplineCurve([App.Vector(36.476652, -1.262627, 0), App.Vector(36.477299, -1.274187, 0), App.Vector(36.478434, -1.294492, 0), App.Vector(36.499707, -1.314005, 0), App.Vector(36.525682, -1.318349, 0), App.Vector(36.55763, -1.326056, 0), App.Vector(36.603425, -1.331786, 0), App.Vector(36.638252, -1.336206, 0), App.Vector(36.65788, -1.338698, 0)], [4, 1, 1, 1, 1, 1, 4], [0, 0.925905201, 1.626257371, 2.181371879, 3.087088273, 4.358305093, 6], False, 3, [1, 1, 1, 1, 1, 1, 1, 1, 1], False), False)
sketch2.addGeometry(Part.LineSegment(App.Vector(36.476652, -1.262627, 0), App.Vector(36.446821, -0.361711, 0)), False)
sketch2.addGeometry(Part.LineSegment(App.Vector(36.446821, -0.361711, 0), App.Vector(36.65788, -0.372152, 0)), False)
sketch2.addGeometry(Part.BSplineCurve([App.Vector(37.448419, -0.804711, 0), App.Vector(37.427063, -0.773254, 0), App.Vector(37.386568, -0.713605, 0), App.Vector(37.320422, -0.633958, 0), App.Vector(37.250726, -0.567108, 0), App.Vector(37.173663, -0.516579, 0), App.Vector(37.094337, -0.477334, 0), App.Vector(37.014686, -0.442485, 0), App.Vector(36.926893, -0.416177, 0), App.Vector(36.848201, -0.397465, 0), App.Vector(36.782112, -0.384704, 0), App.Vector(36.736019, -0.378312, 0), App.Vector(36.695283, -0.373119, 0), App.Vector(36.669826, -0.372461, 0), App.Vector(36.65788, -0.372152, 0)], [4, 1, 1, 1, 1, 1, 1, 1, 1, 1, 1, 1, 4], [0, 1.453572249, 2.75625039, 3.953730064, 5.132566341, 6.263730064, 7.337486329, 8.453238547, 9.76321854, 10.430854957, 11.026567013, 11.543191201, 12], False, 3, [1, 1, 1, 1, 1, 1, 1, 1, 1, 1, 1, 1, 1, 1, 1], False), False)
sketch2.addGeometry(Part.LineSegment(App.Vector(37.448419, -0.804711, 0), App.Vector(37.604289, -1.051568, 0)), False)
sketch2.addGeometry(Part.BSplineCurve([App.Vector(38.228517, -1.393886, 0), App.Vector(38.183544, -1.385907, 0), App.Vector(38.092929, -1.369829, 0), App.Vector(37.983829, -1.335199, 0), App.Vector(37.900885, -1.302903, 0), App.Vector(37.845304, -1.275902, 0), App.Vector(37.7961, -1.247051, 0), App.Vector(37.73791, -1.205334, 0), App.Vector(37.671859, -1.141625, 0), App.Vector(37.627564, -1.082589, 0), App.Vector(37.604289, -1.051568, 0)], [4, 1, 1, 1, 1, 1, 1, 1, 4], [0, 1.490916612, 3.004077927, 3.729534125, 4.397912905, 5.020560084, 5.590839424, 6.734084393, 8], False, 3, [1, 1, 1, 1, 1, 1, 1, 1, 1, 1, 1], False), False)
sketch2.addGeometry(Part.BSplineCurve([App.Vector(39.427004, -0.835288, 0), App.Vector(39.425716, -0.852753, 0), App.Vector(39.423172, -0.887261, 0), App.Vector(39.411383, -0.938023, 0), App.Vector(39.394385, -0.987048, 0), App.Vector(39.364105, -1.049752, 0), App.Vector(39.31663, -1.123075, 0), App.Vector(39.254287, -1.185454, 0), App.Vector(39.197221, -1.228618, 0), App.Vector(39.148653, -1.259023, 0), App.Vector(39.09442, -1.285966, 0), App.Vector(39.015618, -1.319802, 0), App.Vector(38.911047, -1.3552, 0), App.Vector(38.778973, -1.380726, 0), App.Vector(38.641821, -1.397093, 0), App.Vector(38.501609, -1.404582, 0), App.Vector(38.362779, -1.405974, 0), App.Vector(38.272237, -1.397822, 0), App.Vector(38.228517, -1.393886, 0)], [4, 1, 1, 1, 1, 1, 1, 1, 1, 1, 1, 1, 1, 1, 1, 1, 4], [0, 0.570779476, 1.127842599, 1.694919432, 2.261066821, 3.397481896, 4.527710891, 5.118384485, 5.730727279, 6.394748858, 7.092559246, 8.529363642, 9.986910621, 11.474321506, 13.03467297, 14.568129345, 16], False, 3, [1, 1, 1, 1, 1, 1, 1, 1, 1, 1, 1, 1, 1, 1, 1, 1, 1, 1, 1], False), False)
sketch2.addGeometry(Part.BSplineCurve([App.Vector(38.621549, -0.255808, 0), App.Vector(38.649915, -0.257768, 0), App.Vector(38.704772, -0.261558, 0), App.Vector(38.783835, -0.271561, 0), App.Vector(38.857099, -0.283138, 0), App.Vector(38.92601, -0.298188, 0), App.Vector(38.993446, -0.318524, 0), App.Vector(39.061274, -0.347474, 0), App.Vector(39.131819, -0.383581, 0), App.Vector(39.202611, -0.426239, 0), App.Vector(39.269409, -0.473046, 0), App.Vector(39.323767, -0.525585, 0), App.Vector(39.365198, -0.58057, 0), App.Vector(39.389856, -0.639074, 0), App.Vector(39.405189, -0.695246, 0), App.Vector(39.417251, -0.74647, 0), App.Vector(39.42568, -0.792502, 0), App.Vector(39.42658, -0.821584, 0), App.Vector(39.427004, -0.835288, 0)], [4, 1, 1, 1, 1, 1, 1, 1, 1, 1, 1, 1, 1, 1, 1, 1, 4], [0, 1.238521709, 2.395159043, 3.470603583, 4.46912877, 5.466066804, 6.534123646, 7.677244524, 8.916145015, 10.13365226, 11.221244199, 12.198275335, 13.109907183, 13.966820176, 14.733954848, 15.403435577, 16], False, 3, [1, 1, 1, 1, 1, 1, 1, 1, 1, 1, 1, 1, 1, 1, 1, 1, 1, 1, 1], False), False)
sketch2.addGeometry(Part.BSplineCurve([App.Vector(38.153192, -0.255808, 0), App.Vector(38.177301, -0.254241, 0), App.Vector(38.223263, -0.251253, 0), App.Vector(38.288903, -0.248169, 0), App.Vector(38.347839, -0.246867, 0), App.Vector(38.419689, -0.245563, 0), App.Vector(38.5103, -0.247575, 0), App.Vector(38.583285, -0.252976, 0), App.Vector(38.621549, -0.255808, 0)], [4, 1, 1, 1, 1, 1, 4], [0, 0.927540379, 1.768282303, 2.522502339, 3.190652681, 4.527123766, 6], False, 3, [1, 1, 1, 1, 1, 1, 1, 1, 1], False), False)
sketch2.addConstraint(Sketcher.Constraint("Block", 0))
sketch2.addConstraint(Sketcher.Constraint("Block", 3))
sketch2.addConstraint(Sketcher.Constraint("Block", 5))
sketch2.addConstraint(Sketcher.Constraint("Block", 8))
sketch2.addConstraint(Sketcher.Constraint("Block", 9))
sketch2.addConstraint(Sketcher.Constraint("Block", 10))
sketch2.addConstraint(Sketcher.Constraint("Block", 13))
sketch2.addConstraint(Sketcher.Constraint("Block", 14))
sketch2.addConstraint(Sketcher.Constraint("Block", 15))
sketch2.addConstraint(Sketcher.Constraint("Block", 17))
sketch2.addConstraint(Sketcher.Constraint("Block", 19))
sketch2.addConstraint(Sketcher.Constraint("Block", 21))
sketch2.addConstraint(Sketcher.Constraint("Block", 26))
sketch2.addConstraint(Sketcher.Constraint("Block", 29))
sketch2.addConstraint(Sketcher.Constraint("Block", 31))
sketch2.addConstraint(Sketcher.Constraint("Block", 35))
sketch2.addConstraint(Sketcher.Constraint("Block", 36))
sketch2.addConstraint(Sketcher.Constraint("Block", 37))
sketch2.addConstraint(Sketcher.Constraint("Block", 39))
sketch2.addConstraint(Sketcher.Constraint("Block", 40))
sketch2.addConstraint(Sketcher.Constraint("Block", 42))
sketch2.addConstraint(Sketcher.Constraint("Block", 46))
sketch2.addConstraint(Sketcher.Constraint("Block", 49))
sketch2.addConstraint(Sketcher.Constraint("Block", 51))
sketch2.addConstraint(Sketcher.Constraint("Block", 52))
sketch2.addConstraint(Sketcher.Constraint("Block", 53))
sketch2.addConstraint(Sketcher.Constraint("Block", 54))
sketch2.addConstraint(Sketcher.Constraint("Coincident", 0, 1, 1, 1))
sketch2.addConstraint(Sketcher.Constraint("Coincident", 1, 2, 2, 1))
sketch2.addConstraint(Sketcher.Constraint("Coincident", 2, 2, 3, 2))
sketch2.addConstraint(Sketcher.Constraint("Coincident", 3, 1, 4, 1))
sketch2.addConstraint(Sketcher.Constraint("Coincident", 4, 2, 5, 2))
sketch2.addConstraint(Sketcher.Constraint("Coincident", 5, 1, 6, 1))
sketch2.addConstraint(Sketcher.Constraint("Coincident", 6, 2, 7, 1))
sketch2.addConstraint(Sketcher.Constraint("Coincident", 7, 2, 8, 2))
sketch2.addConstraint(Sketcher.Constraint("Coincident", 10, 1, 11, 1))
sketch2.addConstraint(Sketcher.Constraint("Coincident", 11, 2, 12, 1))
sketch2.addConstraint(Sketcher.Constraint("Coincident", 12, 2, 13, 2))
sketch2.addConstraint(Sketcher.Constraint("Coincident", 15, 1, 16, 1))
sketch2.addConstraint(Sketcher.Constraint("Coincident", 16, 2, 17, 2))
sketch2.addConstraint(Sketcher.Constraint("Coincident", 17, 1, 18, 1))
sketch2.addConstraint(Sketcher.Constraint("Coincident", 18, 2, 19, 2))
sketch2.addConstraint(Sketcher.Constraint("Coincident", 19, 1, 20, 1))
sketch2.addConstraint(Sketcher.Constraint("Coincident", 20, 2, 21, 2))
sketch2.addConstraint(Sketcher.Constraint("Coincident", 21, 1, 22, 1))
sketch2.addConstraint(Sketcher.Constraint("Coincident", 22, 2, 23, 1))
sketch2.addConstraint(Sketcher.Constraint("Coincident", 23, 2, 24, 1))
sketch2.addConstraint(Sketcher.Constraint("Coincident", 24, 2, 25, 1))
sketch2.addConstraint(Sketcher.Constraint("Coincident", 25, 2, 26, 2))
sketch2.addConstraint(Sketcher.Constraint("Coincident", 26, 1, 27, 1))
sketch2.addConstraint(Sketcher.Constraint("Coincident", 27, 2, 28, 1))
sketch2.addConstraint(Sketcher.Constraint("Coincident", 28, 2, 29, 2))
sketch2.addConstraint(Sketcher.Constraint("Coincident", 29, 1, 30, 1))
sketch2.addConstraint(Sketcher.Constraint("Coincident", 30, 2, 31, 2))
sketch2.addConstraint(Sketcher.Constraint("Coincident", 31, 1, 32, 1))
sketch2.addConstraint(Sketcher.Constraint("Coincident", 32, 2, 0, 2))
sketch2.addConstraint(Sketcher.Constraint("Coincident", 33, 2, 34, 1))
sketch2.addConstraint(Sketcher.Constraint("Coincident", 34, 2, 35, 2))
sketch2.addConstraint(Sketcher.Constraint("Coincident", 37, 1, 38, 1))
sketch2.addConstraint(Sketcher.Constraint("Coincident", 38, 2, 39, 2))
sketch2.addConstraint(Sketcher.Constraint("Coincident", 40, 1, 41, 1))
sketch2.addConstraint(Sketcher.Constraint("Coincident", 41, 2, 42, 2))
sketch2.addConstraint(Sketcher.Constraint("Coincident", 42, 1, 43, 1))
sketch2.addConstraint(Sketcher.Constraint("Coincident", 43, 2, 44, 1))
sketch2.addConstraint(Sketcher.Constraint("Coincident", 44, 2, 45, 1))
sketch2.addConstraint(Sketcher.Constraint("Coincident", 45, 2, 46, 2))
sketch2.addConstraint(Sketcher.Constraint("Coincident", 46, 1, 47, 1))
sketch2.addConstraint(Sketcher.Constraint("Coincident", 47, 2, 48, 1))
sketch2.addConstraint(Sketcher.Constraint("Coincident", 48, 2, 49, 2))
sketch2.addConstraint(Sketcher.Constraint("Coincident", 49, 1, 50, 1))
sketch2.addConstraint(Sketcher.Constraint("Coincident", 50, 2, 51, 2))
sketch2.addConstraint(Sketcher.Constraint("Coincident", 54, 1, 33, 1))
sketch2.addConstraint(Sketcher.Constraint("Vertical", 11))
sketch2.addConstraint(Sketcher.Constraint("Vertical", 33))
sketch2.addConstraint(Sketcher.Constraint("Vertical", 44))
sketch2.addConstraint(Sketcher.Constraint("DistanceY", 11, 1, 11, 2, Q("0.055189 mm")))
sketch2.addConstraint(Sketcher.Constraint("DistanceY", 33, 2, 33, 1, Q("0.076071 mm")))
sketch2.addConstraint(Sketcher.Constraint("DistanceX", -1, 1, 27, 2, Q("39.099601 mm")))
sketch2.addConstraint(Sketcher.Constraint("DistanceX", 4, 2, 1, 2, Q("0.2215 mm")))
sketch2.addConstraint(Sketcher.Constraint("DistanceY", 23, 2, 27, 2, Q("0.780098 mm")))
sketch2.addConstraint(Sketcher.Constraint("DistanceY", 16, 2, 27, 2, Q("0.6645 mm")))
sketch2.addConstraint(Sketcher.Constraint("DistanceY", 22, 2, 28, 2, Q("0.780098 mm")))
sketch2.addConstraint(Sketcher.Constraint("DistanceY", 30, 2, 24, 2, Q("0.2215 mm")))
sketch2.addConstraint(Sketcher.Constraint("DistanceX", 43, 2, 34, 2, Q("1.223098 mm")))
sketch2.addConstraint(Sketcher.Constraint("Distance", 2, Q("0.043211 mm")))
sketch2.addConstraint(Sketcher.Constraint("Distance", 47, Q("0.90141 mm")))
sketch2.addConstraint(Sketcher.Constraint("DistanceY", 44, 1, 44, 2, Q("0.070104 mm")))
sketch2.addConstraint(Sketcher.Constraint("DistanceX", -1, 1, 6, 2, Q("38.05773 mm")))
sketch2.addConstraint(Sketcher.Constraint("DistanceX", -1, 1, 22, 2, Q("39.452361 mm")))
sketch2.addConstraint(Sketcher.Constraint("DistanceY", 43, 2, -1, 1, Q("1.428938 mm")))
sketch2.addConstraint(Sketcher.Constraint("DistanceX", -1, 1, 47, 2, Q("36.446821 mm")))
sketch2.addConstraint(Sketcher.Constraint("DistanceY", 6, 2, 1, 2, Q("0.161091 mm")))
sketch2.addConstraint(Sketcher.Constraint("DistanceX", 18, 2, 23, 2, Q("0.21628 mm")))
sketch2.addConstraint(Sketcher.Constraint("DistanceX", 24, 2, 22, 2, Q("0.120818 mm")))
pocket1 = body.newObject("PartDesign::Pocket", "Pocket")
pocket1.Profile = sketch2
pocket1.Type = "ThroughAll"

doc.recompute()
